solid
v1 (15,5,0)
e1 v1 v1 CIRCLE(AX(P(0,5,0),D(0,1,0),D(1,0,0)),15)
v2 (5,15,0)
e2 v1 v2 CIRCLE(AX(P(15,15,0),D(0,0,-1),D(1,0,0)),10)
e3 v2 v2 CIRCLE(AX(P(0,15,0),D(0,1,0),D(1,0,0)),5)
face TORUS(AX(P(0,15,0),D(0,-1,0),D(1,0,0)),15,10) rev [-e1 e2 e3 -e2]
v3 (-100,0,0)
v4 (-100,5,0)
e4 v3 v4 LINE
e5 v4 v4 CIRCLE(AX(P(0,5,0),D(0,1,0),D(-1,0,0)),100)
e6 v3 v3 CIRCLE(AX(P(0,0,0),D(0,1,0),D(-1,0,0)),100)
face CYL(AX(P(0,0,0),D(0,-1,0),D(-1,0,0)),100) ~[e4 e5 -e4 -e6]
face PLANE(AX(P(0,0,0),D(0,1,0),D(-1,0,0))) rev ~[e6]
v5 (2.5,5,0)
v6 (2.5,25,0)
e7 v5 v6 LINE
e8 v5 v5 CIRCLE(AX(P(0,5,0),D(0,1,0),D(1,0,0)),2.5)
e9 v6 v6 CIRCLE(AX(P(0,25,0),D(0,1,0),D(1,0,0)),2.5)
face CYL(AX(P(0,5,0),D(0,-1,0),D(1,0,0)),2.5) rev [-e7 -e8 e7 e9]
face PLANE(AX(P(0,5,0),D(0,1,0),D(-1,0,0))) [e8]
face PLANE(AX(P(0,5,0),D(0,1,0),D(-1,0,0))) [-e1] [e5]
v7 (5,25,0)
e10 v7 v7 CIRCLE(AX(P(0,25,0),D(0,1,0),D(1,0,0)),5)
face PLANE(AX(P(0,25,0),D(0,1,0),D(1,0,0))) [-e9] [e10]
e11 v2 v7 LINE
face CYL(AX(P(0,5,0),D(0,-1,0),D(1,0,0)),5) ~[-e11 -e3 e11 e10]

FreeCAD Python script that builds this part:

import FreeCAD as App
import Part
import Sketcher


def edges_at(feature, points):
    """Names of the edges that pass closest to the given points."""
    edges = feature.Shape.Edges
    near = lambda p: min(range(len(edges)), key=lambda i: edges[i].distToShape(Part.Vertex(*p))[0])
    return sorted({f"Edge{near(p) + 1}" for p in points})

doc = App.newDocument("Part")
body = doc.addObject("PartDesign::Body", "Body")

# Sketch on XZ plane
sketch1 = body.newObject("Sketcher::SketchObject", "Sketch")
sketch1.AttachmentSupport = (doc.getObject("XZ_Plane"), [""])
sketch1.MapMode = "FlatFace"
sketch1.addGeometry(Part.Circle(App.Vector(0, 0, 0), App.Vector(0, 0, 1), 100), False)
sketch1.addConstraint([
    Sketcher.Constraint("Coincident", 0, 3, -1, 1),
    Sketcher.Constraint("Diameter", 0, 200.0),
])
pad1 = body.newObject("PartDesign::Pad", "Pad")
pad1.Profile = sketch1
pad1.Length = 5
pad1.Reversed = True

# Sketch on XZ plane
sketch2 = body.newObject("Sketcher::SketchObject", "Sketch001")
sketch2.AttachmentSupport = (doc.getObject("XZ_Plane"), [""])
sketch2.MapMode = "FlatFace"
sketch2.AttachmentOffset = App.Placement(App.Vector(0, 0, -5), App.Rotation())
sketch2.addGeometry([
    Part.Circle(App.Vector(0, 0, 0), App.Vector(0, 0, 1), 5),
    Part.Circle(App.Vector(0, 0, 0), App.Vector(0, 0, 1), 2.5),
], False)
sketch2.addConstraint([
    Sketcher.Constraint("Coincident", 0, 3, -1, 1),
    Sketcher.Constraint("Coincident", 1, 3, -1, 1),
    Sketcher.Constraint("Diameter", 0, 10.0),
    Sketcher.Constraint("Diameter", 1, 5.0),
])
pad2 = body.newObject("PartDesign::Pad", "Pad001")
pad2.Profile = sketch2
pad2.Length = 20
pad2.Reversed = True
doc.recompute()

fillet = body.newObject("PartDesign::Fillet", "Fillet")
fillet.Base = (pad2, edges_at(pad2, [(-5, 5, 0)]))
fillet.Radius = 10

doc.recompute()
